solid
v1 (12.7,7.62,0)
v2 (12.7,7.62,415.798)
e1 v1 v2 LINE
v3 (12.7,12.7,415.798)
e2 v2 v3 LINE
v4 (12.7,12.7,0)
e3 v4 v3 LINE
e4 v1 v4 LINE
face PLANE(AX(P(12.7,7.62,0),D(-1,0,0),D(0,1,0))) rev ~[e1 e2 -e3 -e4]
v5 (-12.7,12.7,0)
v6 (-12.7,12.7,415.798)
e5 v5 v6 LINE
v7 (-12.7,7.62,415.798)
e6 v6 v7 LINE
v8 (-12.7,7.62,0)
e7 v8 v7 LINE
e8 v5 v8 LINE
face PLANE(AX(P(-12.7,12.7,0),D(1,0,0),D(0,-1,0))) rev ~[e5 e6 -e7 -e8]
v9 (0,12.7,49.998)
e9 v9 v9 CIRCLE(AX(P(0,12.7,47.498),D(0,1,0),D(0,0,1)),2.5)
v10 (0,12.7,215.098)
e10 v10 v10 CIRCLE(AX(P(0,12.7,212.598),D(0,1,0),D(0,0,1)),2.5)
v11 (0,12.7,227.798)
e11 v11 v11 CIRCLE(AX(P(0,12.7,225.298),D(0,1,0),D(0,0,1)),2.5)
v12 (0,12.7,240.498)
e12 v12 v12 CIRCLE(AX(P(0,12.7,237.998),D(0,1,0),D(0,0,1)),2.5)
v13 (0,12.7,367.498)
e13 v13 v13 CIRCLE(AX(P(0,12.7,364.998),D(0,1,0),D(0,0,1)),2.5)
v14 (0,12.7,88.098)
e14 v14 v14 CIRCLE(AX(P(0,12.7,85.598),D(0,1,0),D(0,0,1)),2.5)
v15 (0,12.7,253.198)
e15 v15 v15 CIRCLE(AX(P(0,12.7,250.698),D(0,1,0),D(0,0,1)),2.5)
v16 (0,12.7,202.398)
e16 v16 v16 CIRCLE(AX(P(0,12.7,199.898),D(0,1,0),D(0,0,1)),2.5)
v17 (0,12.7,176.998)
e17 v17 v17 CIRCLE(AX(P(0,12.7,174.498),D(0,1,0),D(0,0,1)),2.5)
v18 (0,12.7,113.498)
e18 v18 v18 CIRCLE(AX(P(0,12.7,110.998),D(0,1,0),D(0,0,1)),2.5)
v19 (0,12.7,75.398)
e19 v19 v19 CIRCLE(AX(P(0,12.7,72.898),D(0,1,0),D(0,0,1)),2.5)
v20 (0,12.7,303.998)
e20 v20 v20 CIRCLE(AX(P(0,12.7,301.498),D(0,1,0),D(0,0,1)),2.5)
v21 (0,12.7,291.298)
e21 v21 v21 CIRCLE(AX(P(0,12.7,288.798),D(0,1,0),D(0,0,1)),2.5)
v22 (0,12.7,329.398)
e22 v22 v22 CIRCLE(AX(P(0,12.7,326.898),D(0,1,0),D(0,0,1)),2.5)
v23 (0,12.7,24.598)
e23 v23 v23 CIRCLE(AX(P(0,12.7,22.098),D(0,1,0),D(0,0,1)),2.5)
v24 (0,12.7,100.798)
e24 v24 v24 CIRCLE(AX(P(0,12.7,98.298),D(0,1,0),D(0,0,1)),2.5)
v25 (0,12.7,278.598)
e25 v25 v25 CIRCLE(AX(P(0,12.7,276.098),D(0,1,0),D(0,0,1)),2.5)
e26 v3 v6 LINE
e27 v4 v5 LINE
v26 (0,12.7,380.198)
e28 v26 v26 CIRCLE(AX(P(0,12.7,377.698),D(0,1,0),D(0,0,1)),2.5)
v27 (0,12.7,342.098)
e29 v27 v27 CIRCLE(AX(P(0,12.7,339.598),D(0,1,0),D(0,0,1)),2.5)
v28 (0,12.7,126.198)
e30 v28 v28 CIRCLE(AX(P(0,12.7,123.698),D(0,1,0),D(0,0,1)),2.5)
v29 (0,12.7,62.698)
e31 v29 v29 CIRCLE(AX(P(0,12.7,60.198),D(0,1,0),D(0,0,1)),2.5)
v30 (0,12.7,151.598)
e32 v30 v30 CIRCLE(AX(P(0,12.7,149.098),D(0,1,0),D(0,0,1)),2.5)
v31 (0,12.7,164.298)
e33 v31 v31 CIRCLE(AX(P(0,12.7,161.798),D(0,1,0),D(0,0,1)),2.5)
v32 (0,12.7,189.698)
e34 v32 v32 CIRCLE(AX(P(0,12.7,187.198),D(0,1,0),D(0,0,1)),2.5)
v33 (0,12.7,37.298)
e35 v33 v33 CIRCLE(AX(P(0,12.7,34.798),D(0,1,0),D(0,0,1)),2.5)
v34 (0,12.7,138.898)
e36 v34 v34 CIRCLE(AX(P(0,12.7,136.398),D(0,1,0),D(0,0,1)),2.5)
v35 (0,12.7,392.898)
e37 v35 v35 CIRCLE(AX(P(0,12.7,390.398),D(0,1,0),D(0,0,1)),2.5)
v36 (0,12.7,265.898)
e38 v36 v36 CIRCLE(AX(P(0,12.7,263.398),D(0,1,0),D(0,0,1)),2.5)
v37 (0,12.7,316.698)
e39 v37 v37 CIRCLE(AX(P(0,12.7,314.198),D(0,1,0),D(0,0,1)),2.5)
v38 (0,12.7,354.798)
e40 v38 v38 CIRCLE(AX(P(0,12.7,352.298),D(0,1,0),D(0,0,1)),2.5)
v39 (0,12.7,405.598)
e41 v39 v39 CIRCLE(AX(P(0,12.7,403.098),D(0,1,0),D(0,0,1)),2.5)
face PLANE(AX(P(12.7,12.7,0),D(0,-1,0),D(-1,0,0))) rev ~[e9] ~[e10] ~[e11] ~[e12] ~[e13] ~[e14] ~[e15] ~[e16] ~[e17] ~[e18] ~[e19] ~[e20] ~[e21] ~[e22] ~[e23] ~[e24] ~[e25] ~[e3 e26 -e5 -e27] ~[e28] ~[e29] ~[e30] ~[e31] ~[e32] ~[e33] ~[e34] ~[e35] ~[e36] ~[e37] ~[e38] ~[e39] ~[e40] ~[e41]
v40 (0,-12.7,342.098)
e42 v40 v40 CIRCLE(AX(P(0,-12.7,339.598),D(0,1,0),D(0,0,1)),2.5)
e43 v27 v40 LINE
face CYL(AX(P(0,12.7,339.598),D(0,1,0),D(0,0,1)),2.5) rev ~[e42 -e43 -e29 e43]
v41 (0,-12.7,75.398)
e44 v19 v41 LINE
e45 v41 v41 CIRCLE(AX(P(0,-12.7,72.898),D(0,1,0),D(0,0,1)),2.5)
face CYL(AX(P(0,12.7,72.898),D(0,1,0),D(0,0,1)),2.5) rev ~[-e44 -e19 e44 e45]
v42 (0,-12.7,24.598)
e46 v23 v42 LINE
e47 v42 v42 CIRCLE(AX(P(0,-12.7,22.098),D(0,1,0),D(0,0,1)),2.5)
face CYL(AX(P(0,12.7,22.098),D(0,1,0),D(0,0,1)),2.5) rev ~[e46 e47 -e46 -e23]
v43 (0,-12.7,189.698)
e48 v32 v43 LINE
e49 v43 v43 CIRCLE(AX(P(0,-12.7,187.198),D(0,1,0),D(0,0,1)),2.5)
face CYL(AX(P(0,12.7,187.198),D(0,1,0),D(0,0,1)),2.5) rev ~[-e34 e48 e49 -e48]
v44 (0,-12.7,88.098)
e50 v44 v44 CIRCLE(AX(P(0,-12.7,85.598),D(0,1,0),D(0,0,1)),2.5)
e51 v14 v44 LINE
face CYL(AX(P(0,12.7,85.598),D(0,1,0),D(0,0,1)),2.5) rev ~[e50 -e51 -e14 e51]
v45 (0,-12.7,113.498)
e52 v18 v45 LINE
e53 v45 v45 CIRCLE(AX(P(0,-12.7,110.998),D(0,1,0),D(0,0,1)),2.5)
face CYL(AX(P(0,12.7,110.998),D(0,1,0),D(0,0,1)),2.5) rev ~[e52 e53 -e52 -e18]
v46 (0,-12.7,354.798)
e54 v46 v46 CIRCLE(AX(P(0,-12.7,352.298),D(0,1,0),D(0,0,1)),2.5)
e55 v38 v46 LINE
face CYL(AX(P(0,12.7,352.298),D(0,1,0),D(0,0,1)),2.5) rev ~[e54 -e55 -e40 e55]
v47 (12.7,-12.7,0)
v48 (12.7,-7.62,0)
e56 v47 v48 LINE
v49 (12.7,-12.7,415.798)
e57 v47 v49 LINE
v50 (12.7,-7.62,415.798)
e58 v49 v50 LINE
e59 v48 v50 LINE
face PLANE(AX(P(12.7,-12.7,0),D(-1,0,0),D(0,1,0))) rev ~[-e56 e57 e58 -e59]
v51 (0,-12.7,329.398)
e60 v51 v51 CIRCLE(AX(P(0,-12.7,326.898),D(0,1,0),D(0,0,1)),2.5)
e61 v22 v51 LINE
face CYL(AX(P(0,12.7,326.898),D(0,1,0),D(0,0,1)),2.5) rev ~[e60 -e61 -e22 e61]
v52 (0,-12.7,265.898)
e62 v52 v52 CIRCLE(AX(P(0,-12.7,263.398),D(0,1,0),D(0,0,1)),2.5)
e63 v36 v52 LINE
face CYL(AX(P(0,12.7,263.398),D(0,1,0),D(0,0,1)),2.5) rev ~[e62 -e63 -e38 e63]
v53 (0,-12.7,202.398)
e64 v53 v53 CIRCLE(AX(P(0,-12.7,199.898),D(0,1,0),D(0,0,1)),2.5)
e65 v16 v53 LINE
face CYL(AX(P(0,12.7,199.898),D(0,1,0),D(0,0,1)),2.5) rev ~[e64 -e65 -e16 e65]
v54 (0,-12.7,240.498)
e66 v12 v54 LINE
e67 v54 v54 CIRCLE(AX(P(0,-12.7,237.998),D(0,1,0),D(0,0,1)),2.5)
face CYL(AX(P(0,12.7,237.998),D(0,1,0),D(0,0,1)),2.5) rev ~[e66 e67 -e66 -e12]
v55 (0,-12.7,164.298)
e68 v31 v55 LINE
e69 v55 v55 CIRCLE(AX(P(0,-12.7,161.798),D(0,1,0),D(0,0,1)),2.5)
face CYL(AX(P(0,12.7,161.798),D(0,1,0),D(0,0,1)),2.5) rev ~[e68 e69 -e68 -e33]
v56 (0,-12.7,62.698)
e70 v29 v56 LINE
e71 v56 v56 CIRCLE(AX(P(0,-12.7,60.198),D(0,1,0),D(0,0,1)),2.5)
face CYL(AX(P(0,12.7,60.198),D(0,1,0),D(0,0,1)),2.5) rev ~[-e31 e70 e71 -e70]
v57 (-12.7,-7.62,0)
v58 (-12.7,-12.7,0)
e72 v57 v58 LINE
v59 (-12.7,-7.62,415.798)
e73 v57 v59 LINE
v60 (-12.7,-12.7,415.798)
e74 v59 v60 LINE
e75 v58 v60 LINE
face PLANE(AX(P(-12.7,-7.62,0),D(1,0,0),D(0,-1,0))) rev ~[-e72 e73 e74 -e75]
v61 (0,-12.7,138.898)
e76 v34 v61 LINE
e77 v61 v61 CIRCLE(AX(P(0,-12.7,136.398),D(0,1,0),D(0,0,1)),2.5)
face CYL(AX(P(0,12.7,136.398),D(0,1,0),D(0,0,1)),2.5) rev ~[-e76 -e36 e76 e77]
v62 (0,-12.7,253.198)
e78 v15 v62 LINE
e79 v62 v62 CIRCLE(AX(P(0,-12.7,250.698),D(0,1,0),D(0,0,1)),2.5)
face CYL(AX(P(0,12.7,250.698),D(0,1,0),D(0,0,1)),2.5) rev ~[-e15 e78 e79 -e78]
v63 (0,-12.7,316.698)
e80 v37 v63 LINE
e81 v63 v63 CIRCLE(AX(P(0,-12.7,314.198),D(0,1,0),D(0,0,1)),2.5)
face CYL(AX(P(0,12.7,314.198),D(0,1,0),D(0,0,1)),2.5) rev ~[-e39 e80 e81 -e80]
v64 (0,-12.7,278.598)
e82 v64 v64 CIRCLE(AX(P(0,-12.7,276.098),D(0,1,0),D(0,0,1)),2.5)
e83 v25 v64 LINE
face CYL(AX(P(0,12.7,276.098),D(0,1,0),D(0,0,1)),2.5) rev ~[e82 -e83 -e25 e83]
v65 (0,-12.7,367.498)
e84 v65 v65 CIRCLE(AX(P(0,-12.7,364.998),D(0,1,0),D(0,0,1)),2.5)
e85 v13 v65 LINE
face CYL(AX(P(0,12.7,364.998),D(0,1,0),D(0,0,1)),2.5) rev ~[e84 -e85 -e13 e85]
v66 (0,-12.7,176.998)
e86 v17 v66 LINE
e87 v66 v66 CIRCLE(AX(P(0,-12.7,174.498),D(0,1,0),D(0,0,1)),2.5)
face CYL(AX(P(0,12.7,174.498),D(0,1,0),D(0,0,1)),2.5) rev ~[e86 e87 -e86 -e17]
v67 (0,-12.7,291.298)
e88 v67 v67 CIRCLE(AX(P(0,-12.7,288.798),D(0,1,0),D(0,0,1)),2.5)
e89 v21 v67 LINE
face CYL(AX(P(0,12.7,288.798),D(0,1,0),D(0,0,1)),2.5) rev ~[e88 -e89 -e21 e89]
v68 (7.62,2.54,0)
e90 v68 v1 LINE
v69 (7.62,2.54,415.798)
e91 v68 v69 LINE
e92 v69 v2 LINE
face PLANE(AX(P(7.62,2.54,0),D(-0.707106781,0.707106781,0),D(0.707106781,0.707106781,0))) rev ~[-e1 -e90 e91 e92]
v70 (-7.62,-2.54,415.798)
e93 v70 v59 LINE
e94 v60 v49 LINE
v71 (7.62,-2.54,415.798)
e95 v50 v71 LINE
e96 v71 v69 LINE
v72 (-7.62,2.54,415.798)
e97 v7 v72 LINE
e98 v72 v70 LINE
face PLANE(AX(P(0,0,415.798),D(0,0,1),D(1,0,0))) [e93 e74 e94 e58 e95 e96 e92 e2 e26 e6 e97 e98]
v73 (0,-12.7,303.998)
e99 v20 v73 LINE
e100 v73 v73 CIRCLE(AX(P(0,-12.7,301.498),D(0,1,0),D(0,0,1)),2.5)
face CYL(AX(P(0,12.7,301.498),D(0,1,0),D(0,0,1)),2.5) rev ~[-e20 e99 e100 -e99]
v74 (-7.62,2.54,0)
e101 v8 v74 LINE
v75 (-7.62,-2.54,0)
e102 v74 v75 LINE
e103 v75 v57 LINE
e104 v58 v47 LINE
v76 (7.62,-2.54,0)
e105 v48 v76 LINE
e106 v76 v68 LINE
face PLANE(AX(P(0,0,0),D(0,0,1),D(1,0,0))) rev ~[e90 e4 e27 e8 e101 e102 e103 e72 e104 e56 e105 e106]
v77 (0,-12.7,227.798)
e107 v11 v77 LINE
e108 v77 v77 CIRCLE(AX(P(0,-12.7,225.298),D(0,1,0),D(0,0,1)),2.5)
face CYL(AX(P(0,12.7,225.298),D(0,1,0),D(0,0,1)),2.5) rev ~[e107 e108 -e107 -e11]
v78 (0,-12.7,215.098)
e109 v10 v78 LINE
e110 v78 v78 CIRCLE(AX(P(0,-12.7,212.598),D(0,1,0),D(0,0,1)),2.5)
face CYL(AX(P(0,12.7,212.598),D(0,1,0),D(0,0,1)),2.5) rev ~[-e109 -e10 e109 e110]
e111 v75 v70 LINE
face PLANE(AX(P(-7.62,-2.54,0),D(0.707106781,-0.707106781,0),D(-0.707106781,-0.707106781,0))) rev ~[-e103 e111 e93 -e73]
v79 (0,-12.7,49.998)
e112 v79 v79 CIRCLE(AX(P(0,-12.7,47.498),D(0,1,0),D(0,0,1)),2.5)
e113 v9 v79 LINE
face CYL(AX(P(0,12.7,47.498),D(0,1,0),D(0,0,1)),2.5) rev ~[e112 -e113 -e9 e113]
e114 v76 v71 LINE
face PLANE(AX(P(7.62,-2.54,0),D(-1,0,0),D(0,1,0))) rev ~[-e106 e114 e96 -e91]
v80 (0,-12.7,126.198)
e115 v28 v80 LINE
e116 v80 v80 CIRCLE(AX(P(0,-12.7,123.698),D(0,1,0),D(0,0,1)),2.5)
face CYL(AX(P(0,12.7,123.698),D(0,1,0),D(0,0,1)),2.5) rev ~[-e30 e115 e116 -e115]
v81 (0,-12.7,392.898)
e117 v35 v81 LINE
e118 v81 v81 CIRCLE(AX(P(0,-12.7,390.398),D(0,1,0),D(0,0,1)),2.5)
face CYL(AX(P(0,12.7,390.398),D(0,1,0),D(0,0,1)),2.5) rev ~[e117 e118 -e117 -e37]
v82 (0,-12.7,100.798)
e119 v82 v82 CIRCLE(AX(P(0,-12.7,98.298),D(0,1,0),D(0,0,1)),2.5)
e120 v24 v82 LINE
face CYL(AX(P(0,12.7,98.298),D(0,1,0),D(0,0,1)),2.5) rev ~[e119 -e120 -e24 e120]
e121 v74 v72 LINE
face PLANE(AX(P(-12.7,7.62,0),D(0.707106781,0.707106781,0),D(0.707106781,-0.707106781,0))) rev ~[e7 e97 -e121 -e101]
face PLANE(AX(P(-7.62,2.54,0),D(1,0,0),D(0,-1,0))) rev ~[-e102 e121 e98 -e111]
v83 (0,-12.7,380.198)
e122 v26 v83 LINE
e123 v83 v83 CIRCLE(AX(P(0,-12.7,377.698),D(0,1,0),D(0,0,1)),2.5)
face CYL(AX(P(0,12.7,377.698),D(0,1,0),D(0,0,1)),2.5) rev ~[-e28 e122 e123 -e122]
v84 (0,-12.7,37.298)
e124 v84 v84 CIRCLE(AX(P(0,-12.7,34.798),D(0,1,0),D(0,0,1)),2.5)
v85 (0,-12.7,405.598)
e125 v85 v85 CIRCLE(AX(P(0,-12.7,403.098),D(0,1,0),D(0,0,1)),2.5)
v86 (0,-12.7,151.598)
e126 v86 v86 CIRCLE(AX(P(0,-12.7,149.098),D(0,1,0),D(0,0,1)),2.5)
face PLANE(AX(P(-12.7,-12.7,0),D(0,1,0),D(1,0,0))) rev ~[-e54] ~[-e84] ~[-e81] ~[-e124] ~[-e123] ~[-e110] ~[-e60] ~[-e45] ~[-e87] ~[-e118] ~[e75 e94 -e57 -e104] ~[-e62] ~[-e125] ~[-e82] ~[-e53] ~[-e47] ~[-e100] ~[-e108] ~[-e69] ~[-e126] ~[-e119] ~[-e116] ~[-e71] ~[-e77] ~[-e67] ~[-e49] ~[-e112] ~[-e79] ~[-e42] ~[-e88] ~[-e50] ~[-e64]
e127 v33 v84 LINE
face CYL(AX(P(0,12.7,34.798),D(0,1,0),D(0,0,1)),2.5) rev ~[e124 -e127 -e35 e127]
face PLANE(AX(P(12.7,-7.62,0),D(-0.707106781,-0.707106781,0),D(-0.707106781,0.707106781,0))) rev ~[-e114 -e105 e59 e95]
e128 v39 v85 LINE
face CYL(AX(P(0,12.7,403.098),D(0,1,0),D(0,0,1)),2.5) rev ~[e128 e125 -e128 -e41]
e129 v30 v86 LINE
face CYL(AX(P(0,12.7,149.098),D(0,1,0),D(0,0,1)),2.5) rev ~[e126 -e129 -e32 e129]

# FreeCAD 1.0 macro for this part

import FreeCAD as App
import Part
import Sketcher

V = App.Vector
Q = App.Units.Quantity

doc = App.newDocument("Part")
body = doc.addObject("PartDesign::Body", "Body")

# Sketch on XY plane
sketch1 = body.newObject("Sketcher::SketchObject", "Sketch")
sketch1.AttachmentSupport = (doc.getObject("XY_Plane"), [""])
sketch1.MapMode = "FlatFace"
sketch1.addGeometry([
    Part.LineSegment(V(12.7, 12.7, 0), V(-12.7, 12.7, 0)),  # 0
    Part.LineSegment(V(-12.7, 12.7, 0), V(-12.7, 7.62, 0)),  # 1
    Part.LineSegment(V(-12.7, 7.62, 0), V(-7.62, 2.54, 0)),  # 2
    Part.LineSegment(V(-7.62, 2.54, 0), V(-7.62, -2.54, 0)),  # 3
    Part.LineSegment(V(-7.62, -2.54, 0), V(-12.7, -7.62, 0)),  # 4
    Part.LineSegment(V(-12.7, -7.62, 0), V(-12.7, -12.7, 0)),  # 5
    Part.LineSegment(V(-12.7, -12.7, 0), V(12.7, -12.7, 0)),  # 6
    Part.LineSegment(V(12.7, -12.7, 0), V(12.7, -7.62, 0)),  # 7
    Part.LineSegment(V(12.7, -7.62, 0), V(7.62, -2.54, 0)),  # 8
    Part.LineSegment(V(7.62, -2.54, 0), V(7.62, 2.54, 0)),  # 9
    Part.LineSegment(V(7.62, 2.54, 0), V(12.7, 7.62, 0)),  # 10
    Part.LineSegment(V(12.7, 7.62, 0), V(12.7, 12.7, 0)),  # 11
], False)
sketch1.addConstraint([
    Sketcher.Constraint("Coincident", 0, 2, 1, 1),
    Sketcher.Constraint("Coincident", 1, 2, 2, 1),
    Sketcher.Constraint("Coincident", 2, 2, 3, 1),
    Sketcher.Constraint("Coincident", 3, 2, 4, 1),
    Sketcher.Constraint("Coincident", 4, 2, 5, 1),
    Sketcher.Constraint("Coincident", 5, 2, 6, 1),
    Sketcher.Constraint("Coincident", 6, 2, 7, 1),
    Sketcher.Constraint("Coincident", 7, 2, 8, 1),
    Sketcher.Constraint("Coincident", 8, 2, 9, 1),
    Sketcher.Constraint("Coincident", 9, 2, 10, 1),
    Sketcher.Constraint("Coincident", 10, 2, 11, 1),
    Sketcher.Constraint("Coincident", 11, 2, 0, 1),
    Sketcher.Constraint("Horizontal", 0),
    Sketcher.Constraint("Vertical", 1),
    Sketcher.Constraint("Vertical", 3),
    Sketcher.Constraint("Vertical", 5),
    Sketcher.Constraint("Horizontal", 6),
    Sketcher.Constraint("Vertical", 7),
    Sketcher.Constraint("Vertical", 9),
    Sketcher.Constraint("Vertical", 11),
    Sketcher.Constraint("Symmetric", 0, 2, 6, 2, -1, 1),
    Sketcher.Constraint("Symmetric", 2, 2, 8, 2, -1, 1),
    Sketcher.Constraint("Symmetric", 4, 2, 10, 2, -1, 1),
    Sketcher.Constraint("Symmetric", 4, 2, 7, 2, -2),
    Sketcher.Constraint("Perpendicular", 2, 4),
    Sketcher.Constraint("Perpendicular", 4, 8),
    Sketcher.Constraint("Perpendicular", 8, 10),
    Sketcher.Constraint("Horizontal", 3, 2, 8, 2),
    Sketcher.Constraint("Equal", 1, 3),
    Sketcher.Constraint("DistanceX", 0, 2, 0, 1, Q("1 in")),
    Sketcher.Constraint("DistanceY", 1, 2, 1, 1, Q("0.2 in")),
    Sketcher.Constraint("DistanceY", 5, 2, 0, 2, Q("1 in")),
])
pad1 = body.newObject("PartDesign::Pad", "Pad")
pad1.Profile = sketch1
pad1.Length = Q("16.37 in")

# Sketch on XZ plane
sketch2 = body.newObject("Sketcher::SketchObject", "Sketch001")
sketch2.AttachmentSupport = (doc.getObject("XZ_Plane"), [""])
sketch2.MapMode = "FlatFace"
sketch2.AttachmentOffset = App.Placement(V(0, 0, -0.5 * 25.4), App.Rotation())
sketch2.addGeometry([
    Part.Circle(V(0, 403.098, 0), V(0, 0, 1), 2.5),  # 0
    Part.Circle(V(0, 390.398, 0), V(0, 0, 1), 2.5),  # 1
    Part.Circle(V(0, 377.698, 0), V(0, 0, 1), 2.5),  # 2
    Part.Circle(V(0, 364.998, 0), V(0, 0, 1), 2.5),  # 3
    Part.Circle(V(0, 352.298, 0), V(0, 0, 1), 2.5),  # 4
    Part.Circle(V(0, 339.598, 0), V(0, 0, 1), 2.5),  # 5
    Part.Circle(V(0, 326.898, 0), V(0, 0, 1), 2.5),  # 6
    Part.Circle(V(0, 314.198, 0), V(0, 0, 1), 2.5),  # 7
    Part.Circle(V(0, 301.498, 0), V(0, 0, 1), 2.5),  # 8
    Part.Circle(V(0, 288.798, 0), V(0, 0, 1), 2.5),  # 9
    Part.Circle(V(0, 276.098, 0), V(0, 0, 1), 2.5),  # 10
    Part.Circle(V(0, 263.398, 0), V(0, 0, 1), 2.5),  # 11
    Part.Circle(V(0, 250.698, 0), V(0, 0, 1), 2.5),  # 12
    Part.Circle(V(0, 237.998, 0), V(0, 0, 1), 2.5),  # 13
    Part.Circle(V(0, 225.298, 0), V(0, 0, 1), 2.5),  # 14
    Part.Circle(V(0, 212.598, 0), V(0, 0, 1), 2.5),  # 15
    Part.Circle(V(0, 199.898, 0), V(0, 0, 1), 2.5),  # 16
    Part.Circle(V(0, 187.198, 0), V(0, 0, 1), 2.5),  # 17
    Part.Circle(V(0, 174.498, 0), V(0, 0, 1), 2.5),  # 18
    Part.Circle(V(0, 161.798, 0), V(0, 0, 1), 2.5),  # 19
    Part.Circle(V(0, 149.098, 0), V(0, 0, 1), 2.5),  # 20
    Part.Circle(V(0, 136.398, 0), V(0, 0, 1), 2.5),  # 21
    Part.Circle(V(0, 123.698, 0), V(0, 0, 1), 2.5),  # 22
    Part.Circle(V(0, 110.998, 0), V(0, 0, 1), 2.5),  # 23
    Part.Circle(V(0, 98.298, 0), V(0, 0, 1), 2.5),  # 24
    Part.Circle(V(0, 85.598, 0), V(0, 0, 1), 2.5),  # 25
    Part.Circle(V(0, 72.898, 0), V(0, 0, 1), 2.5),  # 26
    Part.Circle(V(0, 60.198, 0), V(0, 0, 1), 2.5),  # 27
    Part.Circle(V(0, 47.498, 0), V(0, 0, 1), 2.5),  # 28
    Part.Circle(V(0, 34.798, 0), V(0, 0, 1), 2.5),  # 29
    Part.Circle(V(0, 22.098, 0), V(0, 0, 1), 2.5),  # 30
], False)
sketch2.addConstraint([
    Sketcher.Constraint("Equal", 0, 1),
    Sketcher.Constraint("Equal", 1, 2),
    Sketcher.Constraint("Equal", 2, 3),
    Sketcher.Constraint("Equal", 3, 4),
    Sketcher.Constraint("Equal", 4, 5),
    Sketcher.Constraint("Equal", 5, 6),
    Sketcher.Constraint("Equal", 6, 7),
    Sketcher.Constraint("Equal", 7, 8),
    Sketcher.Constraint("Equal", 8, 9),
    Sketcher.Constraint("Equal", 9, 10),
    Sketcher.Constraint("Equal", 10, 11),
    Sketcher.Constraint("Equal", 11, 12),
    Sketcher.Constraint("Equal", 12, 13),
    Sketcher.Constraint("Equal", 13, 14),
    Sketcher.Constraint("Equal", 14, 15),
    Sketcher.Constraint("Equal", 15, 16),
    Sketcher.Constraint("Equal", 16, 17),
    Sketcher.Constraint("Equal", 17, 18),
    Sketcher.Constraint("Equal", 18, 19),
    Sketcher.Constraint("Equal", 19, 20),
    Sketcher.Constraint("Equal", 20, 21),
    Sketcher.Constraint("Equal", 21, 22),
    Sketcher.Constraint("Equal", 22, 23),
    Sketcher.Constraint("Equal", 23, 24),
    Sketcher.Constraint("Equal", 24, 25),
    Sketcher.Constraint("Equal", 25, 26),
    Sketcher.Constraint("Equal", 26, 27),
    Sketcher.Constraint("Equal", 27, 28),
    Sketcher.Constraint("Equal", 28, 29),
    Sketcher.Constraint("Equal", 29, 30),
    Sketcher.Constraint("PointOnObject", 0, 3, -2),
    Sketcher.Constraint("PointOnObject", 1, 3, -2),
    Sketcher.Constraint("PointOnObject", 2, 3, -2),
    Sketcher.Constraint("PointOnObject", 3, 3, -2),
    Sketcher.Constraint("PointOnObject", 4, 3, -2),
    Sketcher.Constraint("PointOnObject", 5, 3, -2),
    Sketcher.Constraint("PointOnObject", 6, 3, -2),
    Sketcher.Constraint("PointOnObject", 7, 3, -2),
    Sketcher.Constraint("PointOnObject", 8, 3, -2),
    Sketcher.Constraint("PointOnObject", 9, 3, -2),
    Sketcher.Constraint("PointOnObject", 10, 3, -2),
    Sketcher.Constraint("PointOnObject", 11, 3, -2),
    Sketcher.Constraint("PointOnObject", 12, 3, -2),
    Sketcher.Constraint("PointOnObject", 13, 3, -2),
    Sketcher.Constraint("PointOnObject", 14, 3, -2),
    Sketcher.Constraint("PointOnObject", 15, 3, -2),
    Sketcher.Constraint("PointOnObject", 16, 3, -2),
    Sketcher.Constraint("PointOnObject", 17, 3, -2),
    Sketcher.Constraint("PointOnObject", 18, 3, -2),
    Sketcher.Constraint("PointOnObject", 19, 3, -2),
    Sketcher.Constraint("PointOnObject", 20, 3, -2),
    Sketcher.Constraint("PointOnObject", 21, 3, -2),
    Sketcher.Constraint("PointOnObject", 22, 3, -2),
    Sketcher.Constraint("PointOnObject", 23, 3, -2),
    Sketcher.Constraint("PointOnObject", 24, 3, -2),
    Sketcher.Constraint("PointOnObject", 25, 3, -2),
    Sketcher.Constraint("PointOnObject", 26, 3, -2),
    Sketcher.Constraint("PointOnObject", 27, 3, -2),
    Sketcher.Constraint("PointOnObject", 28, 3, -2),
    Sketcher.Constraint("PointOnObject", 29, 3, -2),
    Sketcher.Constraint("PointOnObject", 30, 3, -2),
    Sketcher.Constraint("DistanceY", 2, 3, 0, 3, Q("1 in")),
    Sketcher.Constraint("DistanceY", 3, 3, 1, 3, Q("1 in")),
    Sketcher.Constraint("DistanceY", 4, 3, 2, 3, Q("1 in")),
    Sketcher.Constraint("DistanceY", 5, 3, 3, 3, Q("1 in")),
    Sketcher.Constraint("DistanceY", 6, 3, 4, 3, Q("1 in")),
    Sketcher.Constraint("DistanceY", 7, 3, 5, 3, Q("1 in")),
    Sketcher.Constraint("DistanceY", 8, 3, 6, 3, Q("1 in")),
    Sketcher.Constraint("DistanceY", 9, 3, 7, 3, Q("1 in")),
    Sketcher.Constraint("DistanceY", 10, 3, 8, 3, Q("1 in")),
    Sketcher.Constraint("DistanceY", 11, 3, 9, 3, Q("1 in")),
    Sketcher.Constraint("DistanceY", 12, 3, 10, 3, Q("1 in")),
    Sketcher.Constraint("DistanceY", 13, 3, 11, 3, Q("1 in")),
    Sketcher.Constraint("DistanceY", 14, 3, 12, 3, Q("1 in")),
    Sketcher.Constraint("DistanceY", 15, 3, 13, 3, Q("1 in")),
    Sketcher.Constraint("DistanceY", 16, 3, 14, 3, Q("1 in")),
    Sketcher.Constraint("DistanceY", 17, 3, 15, 3, Q("1 in")),
    Sketcher.Constraint("DistanceY", 18, 3, 16, 3, Q("1 in")),
    Sketcher.Constraint("DistanceY", 19, 3, 17, 3, Q("1 in")),
    Sketcher.Constraint("DistanceY", 20, 3, 18, 3, Q("1 in")),
    Sketcher.Constraint("DistanceY", 21, 3, 19, 3, Q("1 in")),
    Sketcher.Constraint("DistanceY", 22, 3, 20, 3, Q("1 in")),
    Sketcher.Constraint("DistanceY", 23, 3, 21, 3, Q("1 in")),
    Sketcher.Constraint("DistanceY", 24, 3, 22, 3, Q("1 in")),
    Sketcher.Constraint("DistanceY", 25, 3, 23, 3, Q("1 in")),
    Sketcher.Constraint("DistanceY", 26, 3, 24, 3, Q("1 in")),
    Sketcher.Constraint("DistanceY", 27, 3, 25, 3, Q("1 in")),
    Sketcher.Constraint("DistanceY", 28, 3, 26, 3, Q("1 in")),
    Sketcher.Constraint("DistanceY", 29, 3, 27, 3, Q("1 in")),
    Sketcher.Constraint("DistanceY", 30, 3, 28, 3, Q("1 in")),
    Sketcher.Constraint("DistanceY", 1, 3, 0, 3, Q("0.5 in")),
    Sketcher.Constraint("Diameter", 0, 5.0),
    Sketcher.Constraint("DistanceY", -1, 1, 0, 3, Q("15.87 in")),
])
pocket1 = body.newObject("PartDesign::Pocket", "Pocket")
pocket1.Profile = sketch2
pocket1.Length = Q("1 in")
pocket1.Reversed = True

doc.recompute()
